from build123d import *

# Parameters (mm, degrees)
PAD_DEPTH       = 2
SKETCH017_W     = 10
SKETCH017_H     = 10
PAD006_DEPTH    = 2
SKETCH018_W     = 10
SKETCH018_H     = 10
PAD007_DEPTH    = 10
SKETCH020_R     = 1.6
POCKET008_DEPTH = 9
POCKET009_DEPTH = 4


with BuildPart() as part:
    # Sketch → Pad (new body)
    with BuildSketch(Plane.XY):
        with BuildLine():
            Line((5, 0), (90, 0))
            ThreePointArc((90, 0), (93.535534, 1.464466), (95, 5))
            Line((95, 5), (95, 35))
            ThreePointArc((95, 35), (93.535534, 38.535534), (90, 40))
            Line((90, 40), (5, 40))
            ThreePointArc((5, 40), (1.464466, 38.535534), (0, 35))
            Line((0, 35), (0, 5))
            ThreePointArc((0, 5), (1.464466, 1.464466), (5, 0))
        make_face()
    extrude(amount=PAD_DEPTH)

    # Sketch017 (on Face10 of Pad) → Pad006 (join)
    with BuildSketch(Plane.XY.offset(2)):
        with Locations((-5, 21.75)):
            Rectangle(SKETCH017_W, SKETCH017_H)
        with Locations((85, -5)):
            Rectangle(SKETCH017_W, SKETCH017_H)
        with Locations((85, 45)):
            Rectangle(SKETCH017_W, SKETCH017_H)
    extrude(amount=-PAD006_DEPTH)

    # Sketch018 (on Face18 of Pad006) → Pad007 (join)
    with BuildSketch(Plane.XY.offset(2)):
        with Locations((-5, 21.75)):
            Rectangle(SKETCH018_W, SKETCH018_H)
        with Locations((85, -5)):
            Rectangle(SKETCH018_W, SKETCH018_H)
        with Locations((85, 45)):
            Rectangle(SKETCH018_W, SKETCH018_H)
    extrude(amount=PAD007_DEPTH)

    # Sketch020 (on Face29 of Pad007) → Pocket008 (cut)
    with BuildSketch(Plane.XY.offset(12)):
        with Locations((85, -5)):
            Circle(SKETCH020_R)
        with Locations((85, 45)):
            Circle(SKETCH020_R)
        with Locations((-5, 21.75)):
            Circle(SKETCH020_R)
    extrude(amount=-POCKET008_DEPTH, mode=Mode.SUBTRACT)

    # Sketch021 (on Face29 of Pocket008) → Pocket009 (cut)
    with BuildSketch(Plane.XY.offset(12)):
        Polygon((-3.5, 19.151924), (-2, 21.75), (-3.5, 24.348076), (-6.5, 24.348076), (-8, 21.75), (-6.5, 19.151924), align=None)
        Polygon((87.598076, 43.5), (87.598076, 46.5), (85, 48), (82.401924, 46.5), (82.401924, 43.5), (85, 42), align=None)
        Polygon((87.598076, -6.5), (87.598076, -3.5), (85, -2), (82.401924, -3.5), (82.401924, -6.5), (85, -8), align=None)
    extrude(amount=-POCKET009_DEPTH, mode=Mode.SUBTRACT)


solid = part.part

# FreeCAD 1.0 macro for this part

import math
import FreeCAD as App
import Part
import Sketcher

V = App.Vector
Q = App.Units.Quantity

doc = App.newDocument("Part")
params = doc.addObject("Spreadsheet::Sheet", "Params")
for row, (alias, value) in enumerate([
    ("sketch1_radius", "5 mm"),
    ("sketch1_width", "85 mm"),
    ("sketch1_height", "30 mm"),
    ("pad1_length", "2 mm"),
    ("sketch2_width", "10 mm"),
    ("pad2_length", "2 mm"),
    ("sketch3_width", "10 mm"),
    ("pad3_length", "10 mm"),
    ("sketch4_diameter", "3.2 mm"),
    ("pocket1_length", "9 mm"),
    ("sketch5_width", "3 mm"),
    ("sketch5_length", "3 mm"),
    ("pocket2_length", "4 mm"),
], start=1):
    params.set(f"A{row}", alias)
    params.set(f"B{row}", "=" + value)
    params.setAlias(f"B{row}", alias)

body = doc.addObject("PartDesign::Body", "Body")

# Sketch on XY plane
sketch1 = body.newObject("Sketcher::SketchObject", "Sketch")
sketch1.AttachmentSupport = (doc.getObject("XY_Plane"), [""])
sketch1.MapMode = "FlatFace"
sketch1.addGeometry(Part.LineSegment(V(5, 0, 0), V(90, 0, 0)), False)
sketch1.addGeometry(Part.ArcOfCircle(Part.Circle(V(90, 5, 0), V(0, 0, 1), 5), math.radians(-90.000004), math.radians(0.000004)), False)
sketch1.addGeometry(Part.LineSegment(V(95, 5, 0), V(95, 35, 0)), False)
sketch1.addGeometry(Part.ArcOfCircle(Part.Circle(V(90, 35, 0), V(0, 0, 1), 5), math.radians(-0.000004), math.radians(90.000004)), False)
sketch1.addGeometry(Part.LineSegment(V(90, 40, 0), V(5, 40, 0)), False)
sketch1.addGeometry(Part.ArcOfCircle(Part.Circle(V(5, 35, 0), V(0, 0, 1), 5), math.radians(89.999996), math.radians(180.000004)), False)
sketch1.addGeometry(Part.LineSegment(V(0, 35, 0), V(0, 5, 0)), False)
sketch1.addGeometry(Part.ArcOfCircle(Part.Circle(V(5, 5, 0), V(0, 0, 1), 5), math.radians(179.999996), math.radians(270.000004)), False)
sketch1.addConstraint(Sketcher.Constraint("Tangent", 0, 2, 1, 1))
sketch1.addConstraint(Sketcher.Constraint("Tangent", 1, 2, 2, 1))
sketch1.addConstraint(Sketcher.Constraint("Tangent", 2, 2, 3, 1))
sketch1.addConstraint(Sketcher.Constraint("Tangent", 3, 2, 4, 1))
sketch1.addConstraint(Sketcher.Constraint("Tangent", 4, 2, 5, 1))
sketch1.addConstraint(Sketcher.Constraint("Tangent", 5, 2, 6, 1))
sketch1.addConstraint(Sketcher.Constraint("Tangent", 6, 2, 7, 1))
sketch1.addConstraint(Sketcher.Constraint("Tangent", 7, 2, 0, 1))
sketch1.addConstraint(Sketcher.Constraint("Horizontal", 0))
sketch1.addConstraint(Sketcher.Constraint("Vertical", 2))
sketch1.addConstraint(Sketcher.Constraint("Horizontal", 4))
sketch1.addConstraint(Sketcher.Constraint("Vertical", 6))
sketch1.addConstraint(Sketcher.Constraint("Equal", 1, 3))
sketch1.addConstraint(Sketcher.Constraint("Equal", 3, 5))
sketch1.addConstraint(Sketcher.Constraint("Equal", 5, 7))
sketch1.addConstraint(Sketcher.Constraint("PointOnObject", 0, 2, -1))
sketch1.addConstraint(Sketcher.Constraint("PointOnObject", 5, 2, -2))
sketch1.addConstraint(Sketcher.Constraint("Radius", 1, Q("5 mm")))
sketch1.addConstraint(Sketcher.Constraint("DistanceX", 0, 1, 0, 2, Q("85 mm")))
sketch1.addConstraint(Sketcher.Constraint("DistanceY", 2, 1, 2, 2, Q("30 mm")))
sketch1.setExpression("Constraints[17]", "Params.sketch1_radius")
sketch1.setExpression("Constraints[18]", "Params.sketch1_width")
sketch1.setExpression("Constraints[19]", "Params.sketch1_height")
pad1 = body.newObject("PartDesign::Pad", "Pad")
pad1.Profile = sketch1
pad1.setExpression("Length", "Params.pad1_length")

# Sketch on XY plane
sketch2 = body.newObject("Sketcher::SketchObject", "Sketch001")
sketch2.AttachmentSupport = (doc.getObject("XY_Plane"), [""])
sketch2.MapMode = "FlatFace"
sketch2.AttachmentOffset = App.Placement(V(0, 0, 2), App.Rotation())
sketch2.addGeometry(Part.LineSegment(V(-10, 26.75, 0), V(-10, 16.75, 0)), False)
sketch2.addGeometry(Part.LineSegment(V(-10, 16.75, 0), V(0, 16.75, 0)), False)
sketch2.addGeometry(Part.LineSegment(V(0, 16.75, 0), V(0, 26.75, 0)), False)
sketch2.addGeometry(Part.LineSegment(V(0, 26.75, 0), V(-10, 26.75, 0)), False)
sketch2.addGeometry(Part.LineSegment(V(80, 0, 0), V(80, -10, 0)), False)
sketch2.addGeometry(Part.LineSegment(V(80, -10, 0), V(90, -10, 0)), False)
sketch2.addGeometry(Part.LineSegment(V(90, -10, 0), V(90, 0, 0)), False)
sketch2.addGeometry(Part.LineSegment(V(90, 0, 0), V(80, 0, 0)), False)
sketch2.addGeometry(Part.LineSegment(V(80, 50, 0), V(80, 40, 0)), False)
sketch2.addGeometry(Part.LineSegment(V(80, 40, 0), V(90, 40, 0)), False)
sketch2.addGeometry(Part.LineSegment(V(90, 40, 0), V(90, 50, 0)), False)
sketch2.addGeometry(Part.LineSegment(V(90, 50, 0), V(80, 50, 0)), False)
sketch2.addConstraint(Sketcher.Constraint("Coincident", 0, 2, 1, 1))
sketch2.addConstraint(Sketcher.Constraint("Coincident", 1, 2, 2, 1))
sketch2.addConstraint(Sketcher.Constraint("Coincident", 2, 2, 3, 1))
sketch2.addConstraint(Sketcher.Constraint("Coincident", 3, 2, 0, 1))
sketch2.addConstraint(Sketcher.Constraint("Coincident", 4, 2, 5, 1))
sketch2.addConstraint(Sketcher.Constraint("Coincident", 5, 2, 6, 1))
sketch2.addConstraint(Sketcher.Constraint("Coincident", 6, 2, 7, 1))
sketch2.addConstraint(Sketcher.Constraint("Coincident", 7, 2, 4, 1))
sketch2.addConstraint(Sketcher.Constraint("Coincident", 8, 2, 9, 1))
sketch2.addConstraint(Sketcher.Constraint("Coincident", 9, 2, 10, 1))
sketch2.addConstraint(Sketcher.Constraint("Coincident", 10, 2, 11, 1))
sketch2.addConstraint(Sketcher.Constraint("Coincident", 11, 2, 8, 1))
sketch2.addConstraint(Sketcher.Constraint("Vertical", 0))
sketch2.addConstraint(Sketcher.Constraint("Horizontal", 1))
sketch2.addConstraint(Sketcher.Constraint("Vertical", 2))
sketch2.addConstraint(Sketcher.Constraint("Horizontal", 3))
sketch2.addConstraint(Sketcher.Constraint("Vertical", 4))
sketch2.addConstraint(Sketcher.Constraint("Horizontal", 5))
sketch2.addConstraint(Sketcher.Constraint("Vertical", 6))
sketch2.addConstraint(Sketcher.Constraint("Horizontal", 7))
sketch2.addConstraint(Sketcher.Constraint("Vertical", 8))
sketch2.addConstraint(Sketcher.Constraint("Horizontal", 9))
sketch2.addConstraint(Sketcher.Constraint("Vertical", 10))
sketch2.addConstraint(Sketcher.Constraint("Horizontal", 11))
sketch2.addConstraint(Sketcher.Constraint("PointOnObject", 1, 2, -2))
sketch2.addConstraint(Sketcher.Constraint("PointOnObject", 6, 2, -1))
sketch2.addConstraint(Sketcher.Constraint("Vertical", 7, 2, 8, 2))
sketch2.addConstraint(Sketcher.Constraint("Vertical", 6, 2, 9, 2))
sketch2.addConstraint(Sketcher.Constraint("Equal", 3, 5))
sketch2.addConstraint(Sketcher.Constraint("Equal", 11, 0))
sketch2.addConstraint(Sketcher.Constraint("Equal", 2, 4))
sketch2.addConstraint(Sketcher.Constraint("Equal", 6, 8))
sketch2.addConstraint(Sketcher.Constraint("DistanceX", 1, 1, 1, 2, Q("10 mm")))
sketch2.addConstraint(Sketcher.Constraint("DistanceX", -1, 1, 4, 2, Q("80 mm")))
sketch2.addConstraint(Sketcher.Constraint("DistanceY", -1, 1, 8, 2, Q("40 mm")))
sketch2.addConstraint(Sketcher.Constraint("DistanceY", -1, 1, 0, 2, Q("16.75 mm")))
sketch2.setExpression("Constraints[32]", "Params.sketch2_width")
pad2 = body.newObject("PartDesign::Pad", "Pad001")
pad2.Profile = sketch2
pad2.setExpression("Length", "Params.pad2_length")
pad2.Reversed = True

# Sketch on XY plane
sketch3 = body.newObject("Sketcher::SketchObject", "Sketch002")
sketch3.AttachmentSupport = (doc.getObject("XY_Plane"), [""])
sketch3.MapMode = "FlatFace"
sketch3.AttachmentOffset = App.Placement(V(0, 0, 2), App.Rotation())
sketch3.addGeometry(Part.LineSegment(V(-10, 26.75, 0), V(-10, 16.75, 0)), False)
sketch3.addGeometry(Part.LineSegment(V(-10, 16.75, 0), V(0, 16.75, 0)), False)
sketch3.addGeometry(Part.LineSegment(V(0, 16.75, 0), V(0, 26.75, 0)), False)
sketch3.addGeometry(Part.LineSegment(V(0, 26.75, 0), V(-10, 26.75, 0)), False)
sketch3.addGeometry(Part.LineSegment(V(80, 0, 0), V(80, -10, 0)), False)
sketch3.addGeometry(Part.LineSegment(V(80, -10, 0), V(90, -10, 0)), False)
sketch3.addGeometry(Part.LineSegment(V(90, -10, 0), V(90, 0, 0)), False)
sketch3.addGeometry(Part.LineSegment(V(90, 0, 0), V(80, 0, 0)), False)
sketch3.addGeometry(Part.LineSegment(V(80, 50, 0), V(80, 40, 0)), False)
sketch3.addGeometry(Part.LineSegment(V(80, 40, 0), V(90, 40, 0)), False)
sketch3.addGeometry(Part.LineSegment(V(90, 40, 0), V(90, 50, 0)), False)
sketch3.addGeometry(Part.LineSegment(V(90, 50, 0), V(80, 50, 0)), False)
sketch3.addConstraint(Sketcher.Constraint("Coincident", 0, 2, 1, 1))
sketch3.addConstraint(Sketcher.Constraint("Coincident", 1, 2, 2, 1))
sketch3.addConstraint(Sketcher.Constraint("Coincident", 2, 2, 3, 1))
sketch3.addConstraint(Sketcher.Constraint("Coincident", 3, 2, 0, 1))
sketch3.addConstraint(Sketcher.Constraint("Coincident", 4, 2, 5, 1))
sketch3.addConstraint(Sketcher.Constraint("Coincident", 5, 2, 6, 1))
sketch3.addConstraint(Sketcher.Constraint("Coincident", 6, 2, 7, 1))
sketch3.addConstraint(Sketcher.Constraint("Coincident", 7, 2, 4, 1))
sketch3.addConstraint(Sketcher.Constraint("Coincident", 8, 2, 9, 1))
sketch3.addConstraint(Sketcher.Constraint("Coincident", 9, 2, 10, 1))
sketch3.addConstraint(Sketcher.Constraint("Coincident", 10, 2, 11, 1))
sketch3.addConstraint(Sketcher.Constraint("Coincident", 11, 2, 8, 1))
sketch3.addConstraint(Sketcher.Constraint("Vertical", 0))
sketch3.addConstraint(Sketcher.Constraint("Horizontal", 1))
sketch3.addConstraint(Sketcher.Constraint("Vertical", 2))
sketch3.addConstraint(Sketcher.Constraint("Horizontal", 3))
sketch3.addConstraint(Sketcher.Constraint("Vertical", 4))
sketch3.addConstraint(Sketcher.Constraint("Horizontal", 5))
sketch3.addConstraint(Sketcher.Constraint("Vertical", 6))
sketch3.addConstraint(Sketcher.Constraint("Horizontal", 7))
sketch3.addConstraint(Sketcher.Constraint("Vertical", 8))
sketch3.addConstraint(Sketcher.Constraint("Horizontal", 9))
sketch3.addConstraint(Sketcher.Constraint("Vertical", 10))
sketch3.addConstraint(Sketcher.Constraint("Horizontal", 11))
sketch3.addConstraint(Sketcher.Constraint("PointOnObject", 1, 2, -2))
sketch3.addConstraint(Sketcher.Constraint("PointOnObject", 6, 2, -1))
sketch3.addConstraint(Sketcher.Constraint("Vertical", 7, 2, 8, 2))
sketch3.addConstraint(Sketcher.Constraint("Vertical", 6, 2, 9, 2))
sketch3.addConstraint(Sketcher.Constraint("Equal", 3, 5))
sketch3.addConstraint(Sketcher.Constraint("Equal", 11, 0))
sketch3.addConstraint(Sketcher.Constraint("Equal", 2, 4))
sketch3.addConstraint(Sketcher.Constraint("Equal", 6, 8))
sketch3.addConstraint(Sketcher.Constraint("DistanceX", 1, 1, 1, 2, Q("10 mm")))
sketch3.addConstraint(Sketcher.Constraint("DistanceX", -1, 1, 4, 2, Q("80 mm")))
sketch3.addConstraint(Sketcher.Constraint("DistanceY", -1, 1, 8, 2, Q("40 mm")))
sketch3.addConstraint(Sketcher.Constraint("DistanceY", -1, 1, 0, 2, Q("16.75 mm")))
sketch3.setExpression("Constraints[32]", "Params.sketch3_width")
pad3 = body.newObject("PartDesign::Pad", "Pad002")
pad3.Profile = sketch3
pad3.setExpression("Length", "Params.pad3_length")

# Sketch on XY plane
sketch4 = body.newObject("Sketcher::SketchObject", "Sketch003")
sketch4.AttachmentSupport = (doc.getObject("XY_Plane"), [""])
sketch4.MapMode = "FlatFace"
sketch4.AttachmentOffset = App.Placement(V(0, 0, 12), App.Rotation())
sketch4.addGeometry(Part.Circle(V(85, -5, 0), V(0, 0, 1), 1.6), False)
sketch4.addGeometry(Part.Circle(V(85, 45, 0), V(0, 0, 1), 1.6), False)
sketch4.addGeometry(Part.Circle(V(-5, 21.75, 0), V(0, 0, 1), 1.6), False)
sketch4.addConstraint(Sketcher.Constraint("Equal", 0, 1))
sketch4.addConstraint(Sketcher.Constraint("Equal", 1, 2))
sketch4.addConstraint(Sketcher.Constraint("Vertical", 0, 3, 1, 3))
sketch4.addConstraint(Sketcher.Constraint("Diameter", 0, Q("3.2 mm")))
sketch4.addConstraint(Sketcher.Constraint("DistanceX", -1, 1, 0, 3, Q("85 mm")))
sketch4.addConstraint(Sketcher.Constraint("DistanceY", 0, 3, -1, 1, Q("5 mm")))
sketch4.addConstraint(Sketcher.Constraint("DistanceY", -1, 1, 1, 3, Q("45 mm")))
sketch4.addConstraint(Sketcher.Constraint("DistanceX", 2, 3, -1, 1, Q("5 mm")))
sketch4.addConstraint(Sketcher.Constraint("DistanceY", -1, 1, 2, 3, Q("21.75 mm")))
sketch4.setExpression("Constraints[3]", "Params.sketch4_diameter")
pocket1 = body.newObject("PartDesign::Pocket", "Pocket")
pocket1.Profile = sketch4
pocket1.setExpression("Length", "Params.pocket1_length")

# Sketch on XY plane
sketch5 = body.newObject("Sketcher::SketchObject", "Sketch004")
sketch5.AttachmentSupport = (doc.getObject("XY_Plane"), [""])
sketch5.MapMode = "FlatFace"
sketch5.AttachmentOffset = App.Placement(V(0, 0, 12), App.Rotation())
sketch5.addGeometry(Part.LineSegment(V(-3.5, 19.151924, 0), V(-2, 21.75, 0)), False)
sketch5.addGeometry(Part.LineSegment(V(-2, 21.75, 0), V(-3.5, 24.348076, 0)), False)
sketch5.addGeometry(Part.LineSegment(V(-3.5, 24.348076, 0), V(-6.5, 24.348076, 0)), False)
sketch5.addGeometry(Part.LineSegment(V(-6.5, 24.348076, 0), V(-8, 21.75, 0)), False)
sketch5.addGeometry(Part.LineSegment(V(-8, 21.75, 0), V(-6.5, 19.151924, 0)), False)
sketch5.addGeometry(Part.LineSegment(V(-6.5, 19.151924, 0), V(-3.5, 19.151924, 0)), False)
sketch5.addGeometry(Part.LineSegment(V(87.598076, 43.5, 0), V(87.598076, 46.5, 0)), False)
sketch5.addGeometry(Part.LineSegment(V(87.598076, 46.5, 0), V(85, 48, 0)), False)
sketch5.addGeometry(Part.LineSegment(V(85, 48, 0), V(82.401924, 46.5, 0)), False)
sketch5.addGeometry(Part.LineSegment(V(82.401924, 46.5, 0), V(82.401924, 43.5, 0)), False)
sketch5.addGeometry(Part.LineSegment(V(82.401924, 43.5, 0), V(85, 42, 0)), False)
sketch5.addGeometry(Part.LineSegment(V(85, 42, 0), V(87.598076, 43.5, 0)), False)
sketch5.addGeometry(Part.LineSegment(V(87.598076, -6.5, 0), V(87.598076, -3.5, 0)), False)
sketch5.addGeometry(Part.LineSegment(V(87.598076, -3.5, 0), V(85, -2, 0)), False)
sketch5.addGeometry(Part.LineSegment(V(85, -2, 0), V(82.401924, -3.5, 0)), False)
sketch5.addGeometry(Part.LineSegment(V(82.401924, -3.5, 0), V(82.401924, -6.5, 0)), False)
sketch5.addGeometry(Part.LineSegment(V(82.401924, -6.5, 0), V(85, -8, 0)), False)
sketch5.addGeometry(Part.LineSegment(V(85, -8, 0), V(87.598076, -6.5, 0)), False)
sketch5.addConstraint(Sketcher.Constraint("Coincident", 0, 2, 1, 1))
sketch5.addConstraint(Sketcher.Constraint("Coincident", 1, 2, 2, 1))
sketch5.addConstraint(Sketcher.Constraint("Coincident", 2, 2, 3, 1))
sketch5.addConstraint(Sketcher.Constraint("Coincident", 3, 2, 4, 1))
sketch5.addConstraint(Sketcher.Constraint("Coincident", 4, 2, 5, 1))
sketch5.addConstraint(Sketcher.Constraint("Coincident", 5, 2, 0, 1))
sketch5.addConstraint(Sketcher.Constraint("Coincident", 6, 2, 7, 1))
sketch5.addConstraint(Sketcher.Constraint("Coincident", 7, 2, 8, 1))
sketch5.addConstraint(Sketcher.Constraint("Coincident", 8, 2, 9, 1))
sketch5.addConstraint(Sketcher.Constraint("Coincident", 9, 2, 10, 1))
sketch5.addConstraint(Sketcher.Constraint("Coincident", 10, 2, 11, 1))
sketch5.addConstraint(Sketcher.Constraint("Coincident", 11, 2, 6, 1))
sketch5.addConstraint(Sketcher.Constraint("Coincident", 12, 2, 13, 1))
sketch5.addConstraint(Sketcher.Constraint("Coincident", 13, 2, 14, 1))
sketch5.addConstraint(Sketcher.Constraint("Coincident", 14, 2, 15, 1))
sketch5.addConstraint(Sketcher.Constraint("Coincident", 15, 2, 16, 1))
sketch5.addConstraint(Sketcher.Constraint("Coincident", 16, 2, 17, 1))
sketch5.addConstraint(Sketcher.Constraint("Coincident", 17, 2, 12, 1))
sketch5.addConstraint(Sketcher.Constraint("Horizontal", 2))
sketch5.addConstraint(Sketcher.Constraint("Horizontal", 5))
sketch5.addConstraint(Sketcher.Constraint("Vertical", 6))
sketch5.addConstraint(Sketcher.Constraint("Vertical", 9))
sketch5.addConstraint(Sketcher.Constraint("Vertical", 12))
sketch5.addConstraint(Sketcher.Constraint("Vertical", 15))
sketch5.addConstraint(Sketcher.Constraint("Parallel", 0, 3))
sketch5.addConstraint(Sketcher.Constraint("Parallel", 1, 4))
sketch5.addConstraint(Sketcher.Constraint("Perpendicular", 3, 7))
sketch5.addConstraint(Sketcher.Constraint("Perpendicular", 4, 8))
sketch5.addConstraint(Sketcher.Constraint("Parallel", 7, 10))
sketch5.addConstraint(Sketcher.Constraint("Parallel", 8, 11))
sketch5.addConstraint(Sketcher.Constraint("Parallel", 10, 13))
sketch5.addConstraint(Sketcher.Constraint("Parallel", 11, 14))
sketch5.addConstraint(Sketcher.Constraint("Parallel", 13, 16))
sketch5.addConstraint(Sketcher.Constraint("Parallel", 14, 17))
sketch5.addConstraint(Sketcher.Constraint("Horizontal", 0, 2, 3, 2))
sketch5.addConstraint(Sketcher.Constraint("Horizontal", 6, 2, 8, 2))
sketch5.addConstraint(Sketcher.Constraint("Horizontal", 9, 2, 11, 2))
sketch5.addConstraint(Sketcher.Constraint("Horizontal", 12, 2, 14, 2))
sketch5.addConstraint(Sketcher.Constraint("Horizontal", 15, 2, 17, 2))
sketch5.addConstraint(Sketcher.Constraint("Vertical", 2, 2, 4, 2))
sketch5.addConstraint(Sketcher.Constraint("Vertical", 1, 2, 5, 2))
sketch5.addConstraint(Sketcher.Constraint("Vertical", 11, 2, 12, 2))
sketch5.addConstraint(Sketcher.Constraint("Vertical", 10, 2, 13, 2))
sketch5.addConstraint(Sketcher.Constraint("Equal", 5, 6))
sketch5.addConstraint(Sketcher.Constraint("Equal", 9, 12))
sketch5.addConstraint(Sketcher.Constraint("Equal", 4, 7))
sketch5.addConstraint(Sketcher.Constraint("DistanceX", 2, 2, 2, 1, Q("3 mm")))
sketch5.addConstraint(Sketcher.Constraint("Angle", 0, Q("59.999998 deg")))
sketch5.addConstraint(Sketcher.Constraint("Distance", 0, Q("3 mm")))
sketch5.addConstraint(Sketcher.Constraint("DistanceX", 0, 2, -1, 1, Q("2 mm")))
sketch5.addConstraint(Sketcher.Constraint("DistanceX", -1, 1, 7, 2, Q("85 mm")))
sketch5.addConstraint(Sketcher.Constraint("DistanceY", -1, 1, 7, 2, Q("48 mm")))
sketch5.addConstraint(Sketcher.Constraint("DistanceY", 13, 2, -1, 1, Q("2 mm")))
sketch5.addConstraint(Sketcher.Constraint("DistanceY", -1, 1, 0, 2, Q("21.75 mm")))
sketch5.setExpression("Constraints[46]", "Params.sketch5_width")
sketch5.setExpression("Constraints[48]", "Params.sketch5_length")
pocket2 = body.newObject("PartDesign::Pocket", "Pocket001")
pocket2.Profile = sketch5
pocket2.setExpression("Length", "Params.pocket2_length")

doc.recompute()
